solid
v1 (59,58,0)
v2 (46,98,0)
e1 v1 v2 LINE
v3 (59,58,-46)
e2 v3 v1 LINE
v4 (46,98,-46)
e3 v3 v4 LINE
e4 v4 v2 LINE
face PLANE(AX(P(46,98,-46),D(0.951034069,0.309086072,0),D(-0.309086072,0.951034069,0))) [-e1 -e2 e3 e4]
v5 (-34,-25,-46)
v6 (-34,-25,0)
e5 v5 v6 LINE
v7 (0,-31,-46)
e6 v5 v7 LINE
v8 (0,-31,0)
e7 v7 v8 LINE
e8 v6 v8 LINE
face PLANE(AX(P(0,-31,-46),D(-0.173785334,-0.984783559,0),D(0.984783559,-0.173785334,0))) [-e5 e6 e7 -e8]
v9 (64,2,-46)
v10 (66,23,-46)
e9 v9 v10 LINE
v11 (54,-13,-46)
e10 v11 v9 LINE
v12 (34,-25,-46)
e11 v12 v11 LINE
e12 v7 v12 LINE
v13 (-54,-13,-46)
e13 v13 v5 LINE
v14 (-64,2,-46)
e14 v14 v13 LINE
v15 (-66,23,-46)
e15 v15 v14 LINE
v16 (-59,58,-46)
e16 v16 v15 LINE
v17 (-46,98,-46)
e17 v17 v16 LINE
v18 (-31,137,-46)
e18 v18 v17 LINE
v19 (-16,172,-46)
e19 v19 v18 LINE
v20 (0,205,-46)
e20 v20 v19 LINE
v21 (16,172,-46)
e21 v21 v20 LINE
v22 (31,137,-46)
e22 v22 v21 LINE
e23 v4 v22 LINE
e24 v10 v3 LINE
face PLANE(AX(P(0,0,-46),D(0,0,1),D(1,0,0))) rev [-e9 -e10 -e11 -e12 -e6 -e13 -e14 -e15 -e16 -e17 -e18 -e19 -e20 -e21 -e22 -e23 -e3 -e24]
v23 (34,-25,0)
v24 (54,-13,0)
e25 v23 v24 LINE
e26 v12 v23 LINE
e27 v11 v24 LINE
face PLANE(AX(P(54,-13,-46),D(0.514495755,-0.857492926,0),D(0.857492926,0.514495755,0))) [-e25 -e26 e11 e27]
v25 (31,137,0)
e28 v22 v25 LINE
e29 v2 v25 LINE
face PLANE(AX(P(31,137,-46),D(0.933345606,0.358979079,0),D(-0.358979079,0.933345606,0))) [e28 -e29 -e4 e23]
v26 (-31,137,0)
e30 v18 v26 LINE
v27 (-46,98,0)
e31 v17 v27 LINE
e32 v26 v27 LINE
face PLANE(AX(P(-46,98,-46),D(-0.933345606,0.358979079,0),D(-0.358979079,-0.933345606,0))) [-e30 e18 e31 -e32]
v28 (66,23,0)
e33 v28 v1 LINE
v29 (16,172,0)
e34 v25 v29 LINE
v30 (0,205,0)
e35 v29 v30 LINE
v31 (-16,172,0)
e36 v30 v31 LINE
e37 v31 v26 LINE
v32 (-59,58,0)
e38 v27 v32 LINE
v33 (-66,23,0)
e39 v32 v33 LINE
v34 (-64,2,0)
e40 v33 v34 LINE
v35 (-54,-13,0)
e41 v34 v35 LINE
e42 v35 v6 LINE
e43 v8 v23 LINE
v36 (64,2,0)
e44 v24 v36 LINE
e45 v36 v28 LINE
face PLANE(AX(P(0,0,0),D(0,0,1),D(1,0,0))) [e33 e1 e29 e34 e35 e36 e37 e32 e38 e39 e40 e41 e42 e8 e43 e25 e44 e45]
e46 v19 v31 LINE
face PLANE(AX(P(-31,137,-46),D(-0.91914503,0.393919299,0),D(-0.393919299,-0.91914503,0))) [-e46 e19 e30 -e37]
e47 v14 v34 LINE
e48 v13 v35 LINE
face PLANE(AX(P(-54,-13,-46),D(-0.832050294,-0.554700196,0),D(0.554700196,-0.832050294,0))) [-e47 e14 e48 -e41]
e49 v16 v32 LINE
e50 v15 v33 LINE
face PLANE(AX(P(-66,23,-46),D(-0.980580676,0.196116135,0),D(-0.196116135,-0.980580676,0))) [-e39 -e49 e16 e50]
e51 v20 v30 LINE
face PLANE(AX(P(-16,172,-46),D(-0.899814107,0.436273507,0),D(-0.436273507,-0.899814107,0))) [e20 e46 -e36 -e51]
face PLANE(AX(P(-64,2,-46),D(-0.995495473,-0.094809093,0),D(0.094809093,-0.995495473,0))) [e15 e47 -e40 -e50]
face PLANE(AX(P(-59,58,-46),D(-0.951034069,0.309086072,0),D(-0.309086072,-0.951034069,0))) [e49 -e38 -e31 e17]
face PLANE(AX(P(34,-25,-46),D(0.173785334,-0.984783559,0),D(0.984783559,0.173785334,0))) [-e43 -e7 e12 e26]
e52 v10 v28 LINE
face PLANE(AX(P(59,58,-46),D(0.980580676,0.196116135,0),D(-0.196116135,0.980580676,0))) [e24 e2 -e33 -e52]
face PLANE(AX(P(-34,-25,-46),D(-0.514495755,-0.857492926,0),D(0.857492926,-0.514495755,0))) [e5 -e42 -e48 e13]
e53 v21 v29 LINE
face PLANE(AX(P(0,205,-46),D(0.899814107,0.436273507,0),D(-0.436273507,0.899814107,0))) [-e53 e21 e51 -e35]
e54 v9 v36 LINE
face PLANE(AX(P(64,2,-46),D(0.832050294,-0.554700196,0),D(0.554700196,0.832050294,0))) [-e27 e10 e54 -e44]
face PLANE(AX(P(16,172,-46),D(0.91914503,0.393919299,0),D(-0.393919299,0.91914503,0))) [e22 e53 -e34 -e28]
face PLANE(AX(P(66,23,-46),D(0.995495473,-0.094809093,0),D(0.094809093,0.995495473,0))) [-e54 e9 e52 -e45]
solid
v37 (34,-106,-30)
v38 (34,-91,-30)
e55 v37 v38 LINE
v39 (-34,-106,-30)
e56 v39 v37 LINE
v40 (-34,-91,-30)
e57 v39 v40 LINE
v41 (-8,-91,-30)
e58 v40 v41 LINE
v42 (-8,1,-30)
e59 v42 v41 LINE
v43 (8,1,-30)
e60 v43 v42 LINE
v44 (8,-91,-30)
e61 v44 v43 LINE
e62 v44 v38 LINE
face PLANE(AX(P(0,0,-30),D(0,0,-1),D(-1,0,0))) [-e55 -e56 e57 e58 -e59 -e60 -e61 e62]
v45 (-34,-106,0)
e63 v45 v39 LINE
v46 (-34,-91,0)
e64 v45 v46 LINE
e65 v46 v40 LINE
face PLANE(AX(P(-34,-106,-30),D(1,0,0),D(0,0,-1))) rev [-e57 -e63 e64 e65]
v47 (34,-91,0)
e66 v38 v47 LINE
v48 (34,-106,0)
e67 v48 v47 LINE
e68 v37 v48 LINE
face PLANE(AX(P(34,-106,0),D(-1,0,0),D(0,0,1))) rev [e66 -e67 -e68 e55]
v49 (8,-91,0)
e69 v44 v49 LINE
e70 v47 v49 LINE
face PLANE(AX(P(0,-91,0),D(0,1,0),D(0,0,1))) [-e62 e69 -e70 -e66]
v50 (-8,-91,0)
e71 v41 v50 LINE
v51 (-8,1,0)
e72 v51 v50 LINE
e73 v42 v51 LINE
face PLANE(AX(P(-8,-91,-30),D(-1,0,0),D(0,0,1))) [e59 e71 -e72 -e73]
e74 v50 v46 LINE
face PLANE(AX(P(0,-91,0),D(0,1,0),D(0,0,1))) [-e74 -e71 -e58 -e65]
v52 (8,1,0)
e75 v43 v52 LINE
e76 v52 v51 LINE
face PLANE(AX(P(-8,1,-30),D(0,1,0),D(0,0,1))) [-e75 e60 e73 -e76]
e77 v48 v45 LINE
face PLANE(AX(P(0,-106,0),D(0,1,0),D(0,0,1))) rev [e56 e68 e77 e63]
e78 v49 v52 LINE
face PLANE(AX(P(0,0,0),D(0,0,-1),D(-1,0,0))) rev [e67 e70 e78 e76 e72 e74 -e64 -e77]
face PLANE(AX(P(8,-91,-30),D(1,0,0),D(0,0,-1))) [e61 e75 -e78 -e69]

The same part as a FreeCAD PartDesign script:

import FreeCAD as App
import Part
import Sketcher
from FreeCAD import Vector

doc = App.newDocument("Part")
body = doc.addObject("PartDesign::Body", "Body")

# Sketch on XY plane
sketch1 = body.newObject("Sketcher::SketchObject", "Sketch")
sketch1.AttachmentSupport = (doc.getObject("XY_Plane"), [""])
sketch1.MapMode = "FlatFace"
sketch1.addGeometry(Part.LineSegment(Vector(-8, 1, 0), Vector(-8, -91, 0)), False)
sketch1.addGeometry(Part.LineSegment(Vector(-8, -91, 0), Vector(8, -91, 0)), False)
sketch1.addGeometry(Part.LineSegment(Vector(8, -91, 0), Vector(8, 1, 0)), False)
sketch1.addGeometry(Part.LineSegment(Vector(8, 1, 0), Vector(-8, 1, 0)), False)
sketch1.addConstraint(Sketcher.Constraint("Coincident", 0, 2, 1, 1))
sketch1.addConstraint(Sketcher.Constraint("Coincident", 1, 2, 2, 1))
sketch1.addConstraint(Sketcher.Constraint("Coincident", 2, 2, 3, 1))
sketch1.addConstraint(Sketcher.Constraint("Coincident", 3, 2, 0, 1))
sketch1.addConstraint(Sketcher.Constraint("Vertical", 0))
sketch1.addConstraint(Sketcher.Constraint("Horizontal", 1))
sketch1.addConstraint(Sketcher.Constraint("Vertical", 2))
sketch1.addConstraint(Sketcher.Constraint("Horizontal", 3))
sketch1.addConstraint(Sketcher.Constraint("DistanceX", 1, 1, 1, 2, 16.0))
sketch1.addConstraint(Sketcher.Constraint("DistanceY", 0, 2, 0, 1, 92.0))
sketch1.addConstraint(Sketcher.Constraint("DistanceX", 0, 2, -1, 1, 8.0))
sketch1.addConstraint(Sketcher.Constraint("DistanceY", 0, 2, -1, 1, 91.0))
pad1 = body.newObject("PartDesign::Pad", "Pad")
pad1.Profile = sketch1
pad1.Length = 30
pad1.Reversed = True

# Sketch on XZ plane
sketch2 = body.newObject("Sketcher::SketchObject", "Sketch001")
sketch2.AttachmentSupport = (doc.getObject("XZ_Plane"), [""])
sketch2.MapMode = "FlatFace"
sketch2.AttachmentOffset = App.Placement(Vector(0, 0, 91), App.Rotation())
sketch2.addGeometry(Part.LineSegment(Vector(-34, 0, 0), Vector(-34, -30, 0)), False)
sketch2.addGeometry(Part.LineSegment(Vector(-34, -30, 0), Vector(34, -30, 0)), False)
sketch2.addGeometry(Part.LineSegment(Vector(34, -30, 0), Vector(34, 0, 0)), False)
sketch2.addGeometry(Part.LineSegment(Vector(34, 0, 0), Vector(-34, 0, 0)), False)
sketch2.addConstraint(Sketcher.Constraint("Coincident", 0, 2, 1, 1))
sketch2.addConstraint(Sketcher.Constraint("Coincident", 1, 2, 2, 1))
sketch2.addConstraint(Sketcher.Constraint("Coincident", 2, 2, 3, 1))
sketch2.addConstraint(Sketcher.Constraint("Coincident", 3, 2, 0, 1))
sketch2.addConstraint(Sketcher.Constraint("Vertical", 0))
sketch2.addConstraint(Sketcher.Constraint("Horizontal", 1))
sketch2.addConstraint(Sketcher.Constraint("Vertical", 2))
sketch2.addConstraint(Sketcher.Constraint("Horizontal", 3))
sketch2.addConstraint(Sketcher.Constraint("Symmetric", 2, 2, 3, 2, -1, 1))
sketch2.addConstraint(Sketcher.Constraint("DistanceX", 1, 1, 1, 2, 68.0))
sketch2.addConstraint(Sketcher.Constraint("DistanceY", 0, 2, 0, 1, 30.0))
pad2 = body.newObject("PartDesign::Pad", "Pad001")
pad2.Profile = sketch2
pad2.Length = 15
body2 = doc.addObject("PartDesign::Body", "Body001")

# Sketch on XY plane
sketch3 = body2.newObject("Sketcher::SketchObject", "Sketch002")
sketch3.AttachmentSupport = (doc.getObject("XY_Plane001"), [""])
sketch3.MapMode = "FlatFace"
sketch3.addGeometry(Part.LineSegment(Vector(16, 172, 0), Vector(0, 205, 0)), False)
sketch3.addGeometry(Part.LineSegment(Vector(0, 205, 0), Vector(-16, 172, 0)), False)
sketch3.addGeometry(Part.LineSegment(Vector(-16, 172, 0), Vector(-31, 137, 0)), False)
sketch3.addGeometry(Part.LineSegment(Vector(-31, 137, 0), Vector(-46, 98, 0)), False)
sketch3.addGeometry(Part.LineSegment(Vector(-46, 98, 0), Vector(-59, 58, 0)), False)
sketch3.addGeometry(Part.LineSegment(Vector(-59, 58, 0), Vector(-66, 23, 0)), False)
sketch3.addGeometry(Part.LineSegment(Vector(-66, 23, 0), Vector(-64, 2, 0)), False)
sketch3.addGeometry(Part.LineSegment(Vector(-64, 2, 0), Vector(-54, -13, 0)), False)
sketch3.addGeometry(Part.LineSegment(Vector(-54, -13, 0), Vector(-34, -25, 0)), False)
sketch3.addGeometry(Part.LineSegment(Vector(-34, -25, 0), Vector(0, -31, 0)), False)
sketch3.addGeometry(Part.LineSegment(Vector(0, -31, 0), Vector(34, -25, 0)), False)
sketch3.addGeometry(Part.LineSegment(Vector(34, -25, 0), Vector(54, -13, 0)), False)
sketch3.addGeometry(Part.LineSegment(Vector(54, -13, 0), Vector(64, 2, 0)), False)
sketch3.addGeometry(Part.LineSegment(Vector(64, 2, 0), Vector(66, 23, 0)), False)
sketch3.addGeometry(Part.LineSegment(Vector(66, 23, 0), Vector(59, 58, 0)), False)
sketch3.addGeometry(Part.LineSegment(Vector(59, 58, 0), Vector(46, 98, 0)), False)
sketch3.addGeometry(Part.LineSegment(Vector(46, 98, 0), Vector(31, 137, 0)), False)
sketch3.addGeometry(Part.LineSegment(Vector(31, 137, 0), Vector(16, 172, 0)), False)
sketch3.addConstraint(Sketcher.Constraint("Coincident", 0, 2, 1, 1))
sketch3.addConstraint(Sketcher.Constraint("Coincident", 1, 2, 2, 1))
sketch3.addConstraint(Sketcher.Constraint("Coincident", 2, 2, 3, 1))
sketch3.addConstraint(Sketcher.Constraint("Coincident", 3, 2, 4, 1))
sketch3.addConstraint(Sketcher.Constraint("Coincident", 4, 2, 5, 1))
sketch3.addConstraint(Sketcher.Constraint("Coincident", 5, 2, 6, 1))
sketch3.addConstraint(Sketcher.Constraint("Coincident", 6, 2, 7, 1))
sketch3.addConstraint(Sketcher.Constraint("Coincident", 7, 2, 8, 1))
sketch3.addConstraint(Sketcher.Constraint("Coincident", 8, 2, 9, 1))
sketch3.addConstraint(Sketcher.Constraint("Coincident", 9, 2, 10, 1))
sketch3.addConstraint(Sketcher.Constraint("Coincident", 10, 2, 11, 1))
sketch3.addConstraint(Sketcher.Constraint("Coincident", 11, 2, 12, 1))
sketch3.addConstraint(Sketcher.Constraint("Coincident", 12, 2, 13, 1))
sketch3.addConstraint(Sketcher.Constraint("Coincident", 13, 2, 14, 1))
sketch3.addConstraint(Sketcher.Constraint("Coincident", 14, 2, 15, 1))
sketch3.addConstraint(Sketcher.Constraint("Coincident", 15, 2, 16, 1))
sketch3.addConstraint(Sketcher.Constraint("Coincident", 16, 2, 17, 1))
sketch3.addConstraint(Sketcher.Constraint("Coincident", 17, 2, 0, 1))
sketch3.addConstraint(Sketcher.Constraint("Symmetric", 8, 2, 10, 2, -2))
sketch3.addConstraint(Sketcher.Constraint("Symmetric", 7, 2, 11, 2, -2))
sketch3.addConstraint(Sketcher.Constraint("Symmetric", 6, 2, 12, 2, -2))
sketch3.addConstraint(Sketcher.Constraint("Symmetric", 5, 2, 13, 2, -2))
sketch3.addConstraint(Sketcher.Constraint("Symmetric", 4, 2, 14, 2, -2))
sketch3.addConstraint(Sketcher.Constraint("Symmetric", 3, 2, 15, 2, -2))
sketch3.addConstraint(Sketcher.Constraint("Symmetric", 2, 2, 16, 2, -2))
sketch3.addConstraint(Sketcher.Constraint("Symmetric", 1, 2, 17, 2, -2))
sketch3.addConstraint(Sketcher.Constraint("PointOnObject", 0, 2, -2))
sketch3.addConstraint(Sketcher.Constraint("PointOnObject", 9, 2, -2))
sketch3.addConstraint(Sketcher.Constraint("DistanceY", -1, 1, 0, 2, 205.0))
sketch3.addConstraint(Sketcher.Constraint("DistanceX", 1, 2, -1, 1, 16.0))
sketch3.addConstraint(Sketcher.Constraint("DistanceY", -1, 1, 1, 2, 172.0))
sketch3.addConstraint(Sketcher.Constraint("DistanceX", 2, 2, -1, 1, 31.0))
sketch3.addConstraint(Sketcher.Constraint("DistanceY", -1, 1, 2, 2, 137.0))
sketch3.addConstraint(Sketcher.Constraint("DistanceX", 3, 2, -1, 1, 46.0))
sketch3.addConstraint(Sketcher.Constraint("DistanceY", -1, 1, 3, 2, 98.0))
sketch3.addConstraint(Sketcher.Constraint("DistanceX", 4, 2, -1, 1, 59.0))
sketch3.addConstraint(Sketcher.Constraint("DistanceY", -1, 1, 4, 2, 58.0))
sketch3.addConstraint(Sketcher.Constraint("DistanceX", 5, 2, -1, 1, 66.0))
sketch3.addConstraint(Sketcher.Constraint("DistanceY", -1, 1, 5, 2, 23.0))
sketch3.addConstraint(Sketcher.Constraint("DistanceX", 6, 2, -1, 1, 64.0))
sketch3.addConstraint(Sketcher.Constraint("DistanceY", -1, 1, 6, 2, 2.0))
sketch3.addConstraint(Sketcher.Constraint("DistanceX", 7, 2, -1, 1, 54.0))
sketch3.addConstraint(Sketcher.Constraint("DistanceY", 7, 2, -1, 1, 13.0))
sketch3.addConstraint(Sketcher.Constraint("DistanceX", 8, 2, -1, 1, 34.0))
sketch3.addConstraint(Sketcher.Constraint("DistanceY", 8, 2, -1, 1, 25.0))
sketch3.addConstraint(Sketcher.Constraint("DistanceY", 9, 2, -1, 1, 31.0))
pad3 = body2.newObject("PartDesign::Pad", "Pad002")
pad3.Profile = sketch3
pad3.Length = 46
pad3.Reversed = True

doc.recompute()
